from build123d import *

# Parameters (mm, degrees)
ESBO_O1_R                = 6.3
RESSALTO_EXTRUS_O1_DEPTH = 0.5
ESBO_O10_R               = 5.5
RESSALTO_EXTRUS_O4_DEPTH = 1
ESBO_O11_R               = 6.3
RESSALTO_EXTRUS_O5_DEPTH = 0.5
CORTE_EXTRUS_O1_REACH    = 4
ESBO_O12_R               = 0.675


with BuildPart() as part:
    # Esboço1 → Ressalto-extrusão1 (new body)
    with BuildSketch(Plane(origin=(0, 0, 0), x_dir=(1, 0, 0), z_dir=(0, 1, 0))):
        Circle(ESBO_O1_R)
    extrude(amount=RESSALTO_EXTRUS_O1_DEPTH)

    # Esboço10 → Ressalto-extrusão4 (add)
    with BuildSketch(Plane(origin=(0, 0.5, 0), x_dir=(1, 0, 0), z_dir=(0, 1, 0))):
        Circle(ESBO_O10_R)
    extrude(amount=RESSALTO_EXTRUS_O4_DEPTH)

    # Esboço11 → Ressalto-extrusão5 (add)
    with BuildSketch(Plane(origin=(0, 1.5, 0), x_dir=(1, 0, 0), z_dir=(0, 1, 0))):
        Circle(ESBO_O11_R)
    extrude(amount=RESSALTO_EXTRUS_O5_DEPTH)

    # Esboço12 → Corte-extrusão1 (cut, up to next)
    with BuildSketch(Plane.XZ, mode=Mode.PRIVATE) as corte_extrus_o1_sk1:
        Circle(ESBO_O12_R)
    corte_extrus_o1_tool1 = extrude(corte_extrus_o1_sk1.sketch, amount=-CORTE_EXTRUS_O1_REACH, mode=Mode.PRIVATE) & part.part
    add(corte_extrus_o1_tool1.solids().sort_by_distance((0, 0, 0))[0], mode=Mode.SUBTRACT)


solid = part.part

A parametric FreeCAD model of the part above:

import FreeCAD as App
import Part
import Sketcher
from FreeCAD import Vector

doc = App.newDocument("Part")
body = doc.addObject("PartDesign::Body", "Body")

sketch1 = body.newObject("Sketcher::SketchObject", "Sketch")
sketch1.AttachmentSupport = (doc.getObject("XZ_Plane"), [""])
sketch1.MapMode = "FlatFace"
sketch1.addGeometry(Part.Circle(Vector(0, 0, 0), Vector(0, 0, 1), 6), False)
sketch1.addConstraint(Sketcher.Constraint("Coincident", 0, 3, -1, 1))
sketch1.addConstraint(Sketcher.Constraint("Diameter", 0, 12.6))
pad1 = body.newObject("PartDesign::Pad", "Pad")
pad1.Profile = sketch1
pad1.Length = 0.5
pad1.Reversed = True

sketch2 = body.newObject("Sketcher::SketchObject", "Sketch001")
sketch2.AttachmentSupport = (doc.getObject("XZ_Plane"), [""])
sketch2.MapMode = "FlatFace"
sketch2.AttachmentOffset = App.Placement(Vector(0, 0, -0.5), App.Rotation())
sketch2.addGeometry(Part.Circle(Vector(0, 0, 0), Vector(0, 0, 1), 6), False)
sketch2.addConstraint(Sketcher.Constraint("Coincident", 0, 3, -1, 1))
sketch2.addConstraint(Sketcher.Constraint("Diameter", 0, 11.0))
pad2 = body.newObject("PartDesign::Pad", "Pad001")
pad2.Profile = sketch2
pad2.Length = 1
pad2.Reversed = True

sketch3 = body.newObject("Sketcher::SketchObject", "Sketch002")
sketch3.AttachmentSupport = (doc.getObject("XZ_Plane"), [""])
sketch3.MapMode = "FlatFace"
sketch3.AttachmentOffset = App.Placement(Vector(0, 0, -1.5), App.Rotation())
sketch3.addGeometry(Part.Circle(Vector(0, 0, 0), Vector(0, 0, 1), 6), False)
sketch3.addConstraint(Sketcher.Constraint("Coincident", 0, 3, -1, 1))
sketch3.addConstraint(Sketcher.Constraint("Diameter", 0, 12.6))
pad3 = body.newObject("PartDesign::Pad", "Pad002")
pad3.Profile = sketch3
pad3.Length = 0.5
pad3.Reversed = True

sketch4 = body.newObject("Sketcher::SketchObject", "Sketch003")
sketch4.AttachmentSupport = (doc.getObject("XZ_Plane"), [""])
sketch4.MapMode = "FlatFace"
sketch4.addGeometry(Part.Circle(Vector(0, 0, 0), Vector(0, 0, 1), 0.7), False)
sketch4.addConstraint(Sketcher.Constraint("Coincident", 0, 3, -1, 1))
sketch4.addConstraint(Sketcher.Constraint("Diameter", 0, 1.35))
pocket1 = body.newObject("PartDesign::Pocket", "Pocket")
pocket1.Profile = sketch4
pocket1.Type = "UpToFirst"

doc.recompute()
